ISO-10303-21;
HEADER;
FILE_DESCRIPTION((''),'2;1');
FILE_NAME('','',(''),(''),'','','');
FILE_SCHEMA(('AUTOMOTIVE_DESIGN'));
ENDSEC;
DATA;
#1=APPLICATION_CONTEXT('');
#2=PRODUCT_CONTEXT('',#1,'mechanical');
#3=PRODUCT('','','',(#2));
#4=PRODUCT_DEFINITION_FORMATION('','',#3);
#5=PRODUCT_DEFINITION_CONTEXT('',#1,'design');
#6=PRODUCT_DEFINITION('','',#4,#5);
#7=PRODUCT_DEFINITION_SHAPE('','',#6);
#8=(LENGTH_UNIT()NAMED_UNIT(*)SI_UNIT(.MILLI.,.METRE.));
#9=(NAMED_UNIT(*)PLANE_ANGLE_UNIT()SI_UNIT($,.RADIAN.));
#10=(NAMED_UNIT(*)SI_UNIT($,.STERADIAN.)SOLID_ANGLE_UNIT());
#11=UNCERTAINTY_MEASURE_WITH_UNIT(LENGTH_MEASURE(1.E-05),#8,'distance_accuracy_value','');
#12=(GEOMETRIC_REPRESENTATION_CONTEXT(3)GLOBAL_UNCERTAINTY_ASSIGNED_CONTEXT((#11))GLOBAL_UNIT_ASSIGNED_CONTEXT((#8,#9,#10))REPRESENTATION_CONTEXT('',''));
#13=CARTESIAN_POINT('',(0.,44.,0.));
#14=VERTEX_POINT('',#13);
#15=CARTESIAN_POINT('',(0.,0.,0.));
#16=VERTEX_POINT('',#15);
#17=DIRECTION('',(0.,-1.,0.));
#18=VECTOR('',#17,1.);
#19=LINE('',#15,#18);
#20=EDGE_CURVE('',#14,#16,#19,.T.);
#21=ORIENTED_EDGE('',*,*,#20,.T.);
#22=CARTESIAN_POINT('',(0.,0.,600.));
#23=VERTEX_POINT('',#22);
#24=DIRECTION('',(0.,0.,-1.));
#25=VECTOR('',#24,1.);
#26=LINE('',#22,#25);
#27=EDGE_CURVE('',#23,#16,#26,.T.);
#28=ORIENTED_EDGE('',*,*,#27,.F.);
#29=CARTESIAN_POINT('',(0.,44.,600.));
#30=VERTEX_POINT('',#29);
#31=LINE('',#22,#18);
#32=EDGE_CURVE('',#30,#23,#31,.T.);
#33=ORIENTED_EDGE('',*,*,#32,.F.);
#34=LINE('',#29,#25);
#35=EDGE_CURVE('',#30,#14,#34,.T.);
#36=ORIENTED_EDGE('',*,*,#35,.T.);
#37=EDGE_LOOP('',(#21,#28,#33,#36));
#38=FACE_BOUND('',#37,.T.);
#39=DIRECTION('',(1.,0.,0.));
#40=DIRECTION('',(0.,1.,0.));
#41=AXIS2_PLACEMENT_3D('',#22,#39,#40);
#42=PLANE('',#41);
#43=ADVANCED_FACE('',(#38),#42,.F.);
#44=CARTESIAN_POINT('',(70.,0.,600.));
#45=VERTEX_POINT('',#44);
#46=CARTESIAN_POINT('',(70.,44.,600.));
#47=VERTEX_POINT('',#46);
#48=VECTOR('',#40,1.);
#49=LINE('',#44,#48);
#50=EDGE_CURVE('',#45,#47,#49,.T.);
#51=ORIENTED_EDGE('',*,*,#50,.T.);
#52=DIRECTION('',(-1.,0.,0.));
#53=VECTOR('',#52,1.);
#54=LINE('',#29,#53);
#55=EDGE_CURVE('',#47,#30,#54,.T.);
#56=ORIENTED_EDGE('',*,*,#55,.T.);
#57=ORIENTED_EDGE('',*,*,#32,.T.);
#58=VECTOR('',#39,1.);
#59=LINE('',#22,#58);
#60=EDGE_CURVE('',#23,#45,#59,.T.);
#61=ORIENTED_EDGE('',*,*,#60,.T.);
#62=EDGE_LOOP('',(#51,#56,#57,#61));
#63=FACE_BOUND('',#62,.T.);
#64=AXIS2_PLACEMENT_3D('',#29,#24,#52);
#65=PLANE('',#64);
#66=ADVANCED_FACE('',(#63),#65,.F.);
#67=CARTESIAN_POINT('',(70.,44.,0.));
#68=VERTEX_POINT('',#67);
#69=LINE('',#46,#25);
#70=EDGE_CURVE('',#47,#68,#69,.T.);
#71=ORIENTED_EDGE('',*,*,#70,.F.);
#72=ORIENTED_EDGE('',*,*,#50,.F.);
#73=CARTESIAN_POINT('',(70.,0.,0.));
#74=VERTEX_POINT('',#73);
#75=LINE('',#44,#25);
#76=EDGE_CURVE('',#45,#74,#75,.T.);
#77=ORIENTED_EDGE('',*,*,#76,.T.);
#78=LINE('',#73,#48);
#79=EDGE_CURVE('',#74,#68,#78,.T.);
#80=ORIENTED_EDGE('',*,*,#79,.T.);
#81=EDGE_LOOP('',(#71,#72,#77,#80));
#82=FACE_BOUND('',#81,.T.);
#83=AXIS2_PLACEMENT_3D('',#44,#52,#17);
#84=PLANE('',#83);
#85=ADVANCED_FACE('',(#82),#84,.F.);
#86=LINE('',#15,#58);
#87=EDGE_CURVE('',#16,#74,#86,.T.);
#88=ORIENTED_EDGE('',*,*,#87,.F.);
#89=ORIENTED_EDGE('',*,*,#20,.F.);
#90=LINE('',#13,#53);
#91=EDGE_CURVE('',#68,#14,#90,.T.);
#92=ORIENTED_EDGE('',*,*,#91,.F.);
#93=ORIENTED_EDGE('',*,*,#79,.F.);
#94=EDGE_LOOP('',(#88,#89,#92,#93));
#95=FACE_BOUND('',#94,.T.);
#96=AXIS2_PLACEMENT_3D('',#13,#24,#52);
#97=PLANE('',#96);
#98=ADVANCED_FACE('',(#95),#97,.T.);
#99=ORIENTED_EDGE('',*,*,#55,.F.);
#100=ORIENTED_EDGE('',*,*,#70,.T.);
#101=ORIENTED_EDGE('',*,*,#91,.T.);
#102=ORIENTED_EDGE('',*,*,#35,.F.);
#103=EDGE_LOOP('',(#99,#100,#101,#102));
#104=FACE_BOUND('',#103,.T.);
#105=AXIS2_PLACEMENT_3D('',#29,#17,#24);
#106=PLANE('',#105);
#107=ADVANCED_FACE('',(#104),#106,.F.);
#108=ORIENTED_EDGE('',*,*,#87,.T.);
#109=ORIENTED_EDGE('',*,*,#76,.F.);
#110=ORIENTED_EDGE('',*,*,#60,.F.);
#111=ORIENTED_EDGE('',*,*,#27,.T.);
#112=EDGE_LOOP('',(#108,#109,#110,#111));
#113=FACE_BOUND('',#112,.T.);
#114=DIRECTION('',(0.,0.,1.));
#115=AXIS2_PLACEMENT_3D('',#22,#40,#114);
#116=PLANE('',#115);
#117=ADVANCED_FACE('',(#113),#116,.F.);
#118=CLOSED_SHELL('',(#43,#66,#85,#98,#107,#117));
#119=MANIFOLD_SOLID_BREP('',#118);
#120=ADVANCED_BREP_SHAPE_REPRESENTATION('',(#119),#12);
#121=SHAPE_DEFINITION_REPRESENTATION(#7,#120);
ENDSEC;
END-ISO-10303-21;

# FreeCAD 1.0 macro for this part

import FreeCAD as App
import Part
import Sketcher

V = App.Vector


def add_polygon(sketch, points):
    """Adds a closed chain of lines whose ends are joined by coincident constraints."""
    first, n = sketch.GeometryCount, len(points)
    for a, b in zip(points, points[1:] + points[:1]):
        sketch.addGeometry(Part.LineSegment(App.Vector(*a, 0), App.Vector(*b, 0)), False)
    for i in range(n):
        sketch.addConstraint(Sketcher.Constraint("Coincident", first + i, 2, first + (i + 1) % n, 1))

doc = App.newDocument("Part")
body = doc.addObject("PartDesign::Body", "Body")

# Sketch on XY plane
sketch1 = body.newObject("Sketcher::SketchObject", "Sketch")
sketch1.AttachmentSupport = (doc.getObject("XY_Plane"), [""])
sketch1.MapMode = "FlatFace"
add_polygon(sketch1, [(0, 44), (0, 0), (70, 0), (70, 44)])  # lines 0-3
sketch1.addConstraint([
    Sketcher.Constraint("Vertical", 0),
    Sketcher.Constraint("Horizontal", 1),
    Sketcher.Constraint("Vertical", 2),
    Sketcher.Constraint("Horizontal", 3),
    Sketcher.Constraint("Coincident", 0, 2, -1, 1),
    Sketcher.Constraint("DistanceX", 1, 1, 1, 2, 70.0),
    Sketcher.Constraint("DistanceY", 0, 2, 0, 1, 44.0),
])
pad1 = body.newObject("PartDesign::Pad", "Pad")
pad1.Profile = sketch1
pad1.Length = 600

doc.recompute()
